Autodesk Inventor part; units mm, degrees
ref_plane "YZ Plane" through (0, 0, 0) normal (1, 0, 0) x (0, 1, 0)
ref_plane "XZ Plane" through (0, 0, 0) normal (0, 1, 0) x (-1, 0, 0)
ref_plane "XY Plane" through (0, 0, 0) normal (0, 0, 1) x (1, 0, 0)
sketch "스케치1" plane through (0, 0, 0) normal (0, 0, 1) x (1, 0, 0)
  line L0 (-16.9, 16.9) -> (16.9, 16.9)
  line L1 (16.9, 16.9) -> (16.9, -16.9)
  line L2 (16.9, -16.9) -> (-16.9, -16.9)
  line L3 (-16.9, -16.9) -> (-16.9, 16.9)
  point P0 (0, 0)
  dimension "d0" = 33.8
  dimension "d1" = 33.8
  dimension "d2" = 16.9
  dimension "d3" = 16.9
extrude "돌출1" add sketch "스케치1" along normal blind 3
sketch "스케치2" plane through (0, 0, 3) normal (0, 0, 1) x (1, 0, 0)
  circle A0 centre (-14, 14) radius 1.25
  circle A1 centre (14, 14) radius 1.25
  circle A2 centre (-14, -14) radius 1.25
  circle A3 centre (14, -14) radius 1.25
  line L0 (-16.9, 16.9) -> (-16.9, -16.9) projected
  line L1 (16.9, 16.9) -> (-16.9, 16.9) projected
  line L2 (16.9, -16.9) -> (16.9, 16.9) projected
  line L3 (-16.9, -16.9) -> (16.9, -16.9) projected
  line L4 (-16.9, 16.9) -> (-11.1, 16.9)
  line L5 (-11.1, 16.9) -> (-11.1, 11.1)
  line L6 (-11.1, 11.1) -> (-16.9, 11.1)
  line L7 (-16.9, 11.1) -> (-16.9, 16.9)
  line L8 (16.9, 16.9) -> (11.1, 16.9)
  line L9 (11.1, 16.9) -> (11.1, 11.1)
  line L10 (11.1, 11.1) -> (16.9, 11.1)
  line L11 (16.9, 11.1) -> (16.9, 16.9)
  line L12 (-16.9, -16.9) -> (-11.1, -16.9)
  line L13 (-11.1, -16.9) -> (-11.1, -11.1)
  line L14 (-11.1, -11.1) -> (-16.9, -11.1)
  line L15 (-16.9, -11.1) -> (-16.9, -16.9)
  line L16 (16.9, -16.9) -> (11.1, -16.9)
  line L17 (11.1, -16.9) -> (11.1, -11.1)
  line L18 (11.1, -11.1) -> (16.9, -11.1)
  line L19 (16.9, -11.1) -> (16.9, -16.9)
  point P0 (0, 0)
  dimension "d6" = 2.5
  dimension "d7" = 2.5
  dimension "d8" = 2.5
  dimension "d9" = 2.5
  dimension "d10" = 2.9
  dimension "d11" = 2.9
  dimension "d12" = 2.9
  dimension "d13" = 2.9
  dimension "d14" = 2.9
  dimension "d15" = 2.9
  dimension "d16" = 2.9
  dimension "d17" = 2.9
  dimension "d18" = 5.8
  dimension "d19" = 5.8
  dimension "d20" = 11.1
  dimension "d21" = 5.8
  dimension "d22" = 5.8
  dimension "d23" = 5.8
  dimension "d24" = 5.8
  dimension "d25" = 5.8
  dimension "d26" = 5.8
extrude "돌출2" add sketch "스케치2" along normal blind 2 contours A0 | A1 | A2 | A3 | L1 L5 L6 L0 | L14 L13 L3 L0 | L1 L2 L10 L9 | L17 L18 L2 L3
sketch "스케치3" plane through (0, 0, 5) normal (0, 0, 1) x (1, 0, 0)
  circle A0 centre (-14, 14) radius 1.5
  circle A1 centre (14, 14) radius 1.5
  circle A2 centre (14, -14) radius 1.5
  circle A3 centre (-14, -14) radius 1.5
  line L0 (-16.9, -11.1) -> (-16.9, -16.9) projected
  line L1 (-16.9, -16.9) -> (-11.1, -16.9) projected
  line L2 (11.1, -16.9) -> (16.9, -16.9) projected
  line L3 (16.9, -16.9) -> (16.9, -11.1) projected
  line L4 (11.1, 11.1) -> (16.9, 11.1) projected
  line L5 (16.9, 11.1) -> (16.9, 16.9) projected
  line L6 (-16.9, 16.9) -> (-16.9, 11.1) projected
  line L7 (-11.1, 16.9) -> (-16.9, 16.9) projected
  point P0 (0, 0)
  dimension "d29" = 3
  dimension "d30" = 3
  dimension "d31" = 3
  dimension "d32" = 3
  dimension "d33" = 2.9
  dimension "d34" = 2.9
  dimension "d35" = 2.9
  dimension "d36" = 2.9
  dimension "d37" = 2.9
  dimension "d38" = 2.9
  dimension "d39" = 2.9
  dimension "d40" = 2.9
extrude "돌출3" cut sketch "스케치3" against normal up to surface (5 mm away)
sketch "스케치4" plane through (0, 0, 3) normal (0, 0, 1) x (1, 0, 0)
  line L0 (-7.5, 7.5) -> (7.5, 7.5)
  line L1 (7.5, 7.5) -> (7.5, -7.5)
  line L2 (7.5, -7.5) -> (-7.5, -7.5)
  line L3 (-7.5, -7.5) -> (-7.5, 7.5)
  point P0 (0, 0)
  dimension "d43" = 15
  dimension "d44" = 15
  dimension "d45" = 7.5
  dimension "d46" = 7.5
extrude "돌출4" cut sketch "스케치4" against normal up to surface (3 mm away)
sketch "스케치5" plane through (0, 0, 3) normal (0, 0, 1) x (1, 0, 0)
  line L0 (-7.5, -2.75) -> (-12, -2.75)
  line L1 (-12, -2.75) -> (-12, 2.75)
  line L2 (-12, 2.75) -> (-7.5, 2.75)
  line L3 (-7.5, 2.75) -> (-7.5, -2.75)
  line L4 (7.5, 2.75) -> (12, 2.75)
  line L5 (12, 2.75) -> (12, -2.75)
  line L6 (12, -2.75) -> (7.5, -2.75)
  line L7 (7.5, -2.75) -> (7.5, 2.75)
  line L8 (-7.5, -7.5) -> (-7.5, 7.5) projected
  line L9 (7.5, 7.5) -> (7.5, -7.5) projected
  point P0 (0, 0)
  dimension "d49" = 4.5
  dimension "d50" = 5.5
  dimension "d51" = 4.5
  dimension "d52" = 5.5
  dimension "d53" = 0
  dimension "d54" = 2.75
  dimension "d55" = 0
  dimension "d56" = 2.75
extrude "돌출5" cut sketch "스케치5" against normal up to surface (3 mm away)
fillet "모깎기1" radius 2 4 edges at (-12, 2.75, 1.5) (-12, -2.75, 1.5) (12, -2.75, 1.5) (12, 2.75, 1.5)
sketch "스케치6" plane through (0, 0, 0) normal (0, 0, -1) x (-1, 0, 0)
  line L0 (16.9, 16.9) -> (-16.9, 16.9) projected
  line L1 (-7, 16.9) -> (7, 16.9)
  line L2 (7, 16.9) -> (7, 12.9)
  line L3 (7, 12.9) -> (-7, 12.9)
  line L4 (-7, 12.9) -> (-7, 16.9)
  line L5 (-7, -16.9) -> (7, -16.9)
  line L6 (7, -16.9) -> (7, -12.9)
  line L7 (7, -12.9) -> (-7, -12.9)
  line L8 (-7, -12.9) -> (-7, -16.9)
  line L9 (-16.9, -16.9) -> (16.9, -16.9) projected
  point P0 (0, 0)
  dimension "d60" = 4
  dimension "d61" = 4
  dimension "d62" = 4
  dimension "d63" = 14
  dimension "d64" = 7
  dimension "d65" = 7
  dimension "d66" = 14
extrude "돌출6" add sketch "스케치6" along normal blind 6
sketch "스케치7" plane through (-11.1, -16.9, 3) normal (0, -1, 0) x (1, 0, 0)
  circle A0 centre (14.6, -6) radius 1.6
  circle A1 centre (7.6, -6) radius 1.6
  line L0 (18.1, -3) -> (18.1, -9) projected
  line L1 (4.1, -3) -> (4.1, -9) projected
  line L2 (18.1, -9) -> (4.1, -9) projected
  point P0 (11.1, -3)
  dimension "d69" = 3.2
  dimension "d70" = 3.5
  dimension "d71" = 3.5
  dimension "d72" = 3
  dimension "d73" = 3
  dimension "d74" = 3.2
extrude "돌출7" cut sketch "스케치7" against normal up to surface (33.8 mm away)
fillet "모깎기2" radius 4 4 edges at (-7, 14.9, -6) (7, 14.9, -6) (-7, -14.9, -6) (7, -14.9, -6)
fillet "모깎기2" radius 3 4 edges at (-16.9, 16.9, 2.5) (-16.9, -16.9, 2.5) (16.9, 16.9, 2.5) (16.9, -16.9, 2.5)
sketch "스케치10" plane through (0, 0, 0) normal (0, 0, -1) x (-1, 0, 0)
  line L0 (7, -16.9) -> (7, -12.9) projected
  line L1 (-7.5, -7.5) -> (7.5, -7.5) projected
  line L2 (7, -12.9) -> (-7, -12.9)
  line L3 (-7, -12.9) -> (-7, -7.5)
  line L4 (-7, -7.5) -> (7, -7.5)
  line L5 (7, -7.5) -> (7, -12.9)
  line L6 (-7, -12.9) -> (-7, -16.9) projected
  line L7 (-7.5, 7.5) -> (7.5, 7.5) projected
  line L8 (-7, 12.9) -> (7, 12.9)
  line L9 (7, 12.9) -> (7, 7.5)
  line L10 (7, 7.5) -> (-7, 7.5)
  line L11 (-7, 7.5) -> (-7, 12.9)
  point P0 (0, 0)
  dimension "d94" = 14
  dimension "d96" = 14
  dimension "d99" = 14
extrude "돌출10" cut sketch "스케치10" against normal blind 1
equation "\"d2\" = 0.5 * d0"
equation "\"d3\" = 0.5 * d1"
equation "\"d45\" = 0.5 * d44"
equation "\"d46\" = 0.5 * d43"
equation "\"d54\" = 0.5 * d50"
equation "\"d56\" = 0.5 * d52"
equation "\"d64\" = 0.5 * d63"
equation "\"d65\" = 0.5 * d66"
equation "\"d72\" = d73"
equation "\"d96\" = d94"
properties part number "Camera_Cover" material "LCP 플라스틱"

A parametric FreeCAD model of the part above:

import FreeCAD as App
import Part
import Sketcher
from FreeCAD import Vector
Q = App.Units.Quantity


def edges_at(feature, points):
    """Names of the edges that pass closest to the given points."""
    edges = feature.Shape.Edges
    near = lambda p: min(range(len(edges)), key=lambda i: edges[i].distToShape(Part.Vertex(*p))[0])
    return sorted({f"Edge{near(p) + 1}" for p in points})


def add_polygon(sketch, points):
    """Adds a closed chain of lines whose ends are joined by coincident constraints."""
    first, n = sketch.GeometryCount, len(points)
    for a, b in zip(points, points[1:] + points[:1]):
        sketch.addGeometry(Part.LineSegment(App.Vector(*a, 0), App.Vector(*b, 0)), False)
    for i in range(n):
        sketch.addConstraint(Sketcher.Constraint("Coincident", first + i, 2, first + (i + 1) % n, 1))

doc = App.newDocument("Part")
body = doc.addObject("PartDesign::Body", "Body")

# Sketch on XY plane
sketch1 = body.newObject("Sketcher::SketchObject", "Sketch")
sketch1.AttachmentSupport = (doc.getObject("XY_Plane"), [""])
sketch1.MapMode = "FlatFace"
add_polygon(sketch1, [(16.9, 16.9), (-16.9, 16.9), (-16.9, -16.9), (16.9, -16.9)])  # lines 0-3
sketch1.addConstraint(Sketcher.Constraint("Horizontal", 0))
sketch1.addConstraint(Sketcher.Constraint("Vertical", 1))
sketch1.addConstraint(Sketcher.Constraint("Horizontal", 2))
sketch1.addConstraint(Sketcher.Constraint("Vertical", 3))
sketch1.addConstraint(Sketcher.Constraint("Symmetric", 0, 2, 2, 2, -1, 1))
sketch1.addConstraint(Sketcher.Constraint("Equal", 2, 1))
sketch1.addConstraint(Sketcher.Constraint("DistanceX", 0, 2, 0, 1, Q("33.8 mm")))
pad1 = body.newObject("PartDesign::Pad", "Pad")
pad1.Profile = sketch1
pad1.Length = 3

# Sketch on XY plane
sketch2 = body.newObject("Sketcher::SketchObject", "Sketch001")
sketch2.AttachmentSupport = (doc.getObject("XY_Plane"), [""])
sketch2.MapMode = "FlatFace"
sketch2.AttachmentOffset = App.Placement(Vector(0, 0, 3), App.Rotation())
add_polygon(sketch2, [(-11.1, 16.9), (-16.9, 16.9), (-16.9, 11.1), (-11.1, 11.1)])  # lines 0-3
add_polygon(sketch2, [(16.9, 16.9), (11.1, 16.9), (11.1, 11.1), (16.9, 11.1)])  # lines 4-7
add_polygon(sketch2, [(-11.1, -11.1), (-16.9, -11.1), (-16.9, -16.9), (-11.1, -16.9)])  # lines 8-11
add_polygon(sketch2, [(11.1, -11.1), (11.1, -16.9), (16.9, -16.9), (16.9, -11.1)])  # lines 12-15
sketch2.addConstraint(Sketcher.Constraint("Horizontal", 0))
sketch2.addConstraint(Sketcher.Constraint("Vertical", 1))
sketch2.addConstraint(Sketcher.Constraint("Horizontal", 2))
sketch2.addConstraint(Sketcher.Constraint("Vertical", 3))
sketch2.addConstraint(Sketcher.Constraint("Horizontal", 4))
sketch2.addConstraint(Sketcher.Constraint("Vertical", 5))
sketch2.addConstraint(Sketcher.Constraint("Horizontal", 6))
sketch2.addConstraint(Sketcher.Constraint("Vertical", 7))
sketch2.addConstraint(Sketcher.Constraint("Horizontal", 8))
sketch2.addConstraint(Sketcher.Constraint("Vertical", 9))
sketch2.addConstraint(Sketcher.Constraint("Horizontal", 10))
sketch2.addConstraint(Sketcher.Constraint("Vertical", 11))
sketch2.addConstraint(Sketcher.Constraint("Vertical", 12))
sketch2.addConstraint(Sketcher.Constraint("Horizontal", 13))
sketch2.addConstraint(Sketcher.Constraint("Vertical", 14))
sketch2.addConstraint(Sketcher.Constraint("Horizontal", 15))
sketch2.addConstraint(Sketcher.Constraint("Symmetric", 6, 2, 8, 2, -1, 1))
sketch2.addConstraint(Sketcher.Constraint("Symmetric", 4, 2, 10, 2, -1, 1))
sketch2.addConstraint(Sketcher.Constraint("Symmetric", 3, 2, 12, 2, -1, 1))
sketch2.addConstraint(Sketcher.Constraint("Symmetric", 1, 2, 14, 2, -1, 1))
sketch2.addConstraint(Sketcher.Constraint("Symmetric", 3, 2, 4, 2, -2))
sketch2.addConstraint(Sketcher.Constraint("Symmetric", 1, 2, 6, 2, -2))
sketch2.addConstraint(Sketcher.Constraint("Equal", 15, 1))
sketch2.addConstraint(Sketcher.Constraint("DistanceX", 0, 2, 0, 1, Q("5.8 mm")))
sketch2.addConstraint(Sketcher.Constraint("DistanceY", -1, 1, 1, 2, Q("11.1 mm")))
sketch2.addConstraint(Sketcher.Constraint("DistanceX", 2, 2, -1, 1, Q("11.1 mm")))
pad2 = body.newObject("PartDesign::Pad", "Pad001")
pad2.Profile = sketch2
pad2.Length = 2

# Sketch on XY plane
sketch3 = body.newObject("Sketcher::SketchObject", "Sketch002")
sketch3.AttachmentSupport = (doc.getObject("XY_Plane"), [""])
sketch3.MapMode = "FlatFace"
sketch3.AttachmentOffset = App.Placement(Vector(0, 0, 5), App.Rotation())
sketch3.addGeometry(Part.Circle(Vector(-14, 14, 0), Vector(0, 0, 1), 1.5), False)
sketch3.addGeometry(Part.Circle(Vector(14, 14, 0), Vector(0, 0, 1), 1.5), False)
sketch3.addGeometry(Part.Circle(Vector(14, -14, 0), Vector(0, 0, 1), 1.5), False)
sketch3.addGeometry(Part.Circle(Vector(-14, -14, 0), Vector(0, 0, 1), 1.5), False)
sketch3.addConstraint(Sketcher.Constraint("Equal", 0, 1))
sketch3.addConstraint(Sketcher.Constraint("Equal", 1, 2))
sketch3.addConstraint(Sketcher.Constraint("Equal", 2, 3))
sketch3.addConstraint(Sketcher.Constraint("Symmetric", 0, 3, 2, 3, -1, 1))
sketch3.addConstraint(Sketcher.Constraint("Symmetric", 1, 3, 3, 3, -1, 1))
sketch3.addConstraint(Sketcher.Constraint("Symmetric", 0, 3, 1, 3, -2))
sketch3.addConstraint(Sketcher.Constraint("Diameter", 0, Q("3 mm")))
sketch3.addConstraint(Sketcher.Constraint("DistanceX", 0, 3, -1, 1, Q("14 mm")))
sketch3.addConstraint(Sketcher.Constraint("DistanceY", -1, 1, 0, 3, Q("14 mm")))
pocket1 = body.newObject("PartDesign::Pocket", "Pocket")
pocket1.Profile = sketch3
pocket1.Length = 5

# Sketch on XY plane
sketch4 = body.newObject("Sketcher::SketchObject", "Sketch003")
sketch4.AttachmentSupport = (doc.getObject("XY_Plane"), [""])
sketch4.MapMode = "FlatFace"
sketch4.AttachmentOffset = App.Placement(Vector(0, 0, 3), App.Rotation())
add_polygon(sketch4, [(7.5, 7.5), (-7.5, 7.5), (-7.5, -7.5), (7.5, -7.5)])  # lines 0-3
sketch4.addConstraint(Sketcher.Constraint("Horizontal", 0))
sketch4.addConstraint(Sketcher.Constraint("Vertical", 1))
sketch4.addConstraint(Sketcher.Constraint("Horizontal", 2))
sketch4.addConstraint(Sketcher.Constraint("Vertical", 3))
sketch4.addConstraint(Sketcher.Constraint("Symmetric", 0, 2, 2, 2, -1, 1))
sketch4.addConstraint(Sketcher.Constraint("Equal", 2, 1))
sketch4.addConstraint(Sketcher.Constraint("DistanceX", 0, 2, 0, 1, Q("15 mm")))
pocket2 = body.newObject("PartDesign::Pocket", "Pocket001")
pocket2.Profile = sketch4
pocket2.Length = 3

# Sketch on XY plane
sketch5 = body.newObject("Sketcher::SketchObject", "Sketch004")
sketch5.AttachmentSupport = (doc.getObject("XY_Plane"), [""])
sketch5.MapMode = "FlatFace"
sketch5.AttachmentOffset = App.Placement(Vector(0, 0, 3), App.Rotation())
add_polygon(sketch5, [(-12, -2.75), (-7.5, -2.75), (-7.5, 2.75), (-12, 2.75)])  # lines 0-3
add_polygon(sketch5, [(12, 2.75), (7.5, 2.75), (7.5, -2.75), (12, -2.75)])  # lines 4-7
sketch5.addConstraint(Sketcher.Constraint("Horizontal", 0))
sketch5.addConstraint(Sketcher.Constraint("Vertical", 1))
sketch5.addConstraint(Sketcher.Constraint("Horizontal", 2))
sketch5.addConstraint(Sketcher.Constraint("Vertical", 3))
sketch5.addConstraint(Sketcher.Constraint("Horizontal", 4))
sketch5.addConstraint(Sketcher.Constraint("Vertical", 5))
sketch5.addConstraint(Sketcher.Constraint("Horizontal", 6))
sketch5.addConstraint(Sketcher.Constraint("Vertical", 7))
sketch5.addConstraint(Sketcher.Constraint("Symmetric", 0, 2, 4, 2, -1, 1))
sketch5.addConstraint(Sketcher.Constraint("Symmetric", 2, 2, 6, 2, -1, 1))
sketch5.addConstraint(Sketcher.Constraint("Horizontal", 2, 2, 4, 2))
sketch5.addConstraint(Sketcher.Constraint("DistanceX", 0, 1, 0, 2, Q("4.5 mm")))
sketch5.addConstraint(Sketcher.Constraint("DistanceY", 1, 1, 1, 2, Q("5.5 mm")))
sketch5.addConstraint(Sketcher.Constraint("DistanceX", 2, 2, -1, 1, Q("12 mm")))
pocket3 = body.newObject("PartDesign::Pocket", "Pocket002")
pocket3.Profile = sketch5
pocket3.Length = 3
doc.recompute()

fillet = body.newObject("PartDesign::Fillet", "Fillet")
fillet.Base = (pocket3, edges_at(pocket3, [
    (-12, 2.75, 1.5),
    (-12, -2.75, 1.5),
    (12, -2.75, 1.5),
    (12, 2.75, 1.5),
]))
fillet.Radius = 2

# Sketch on XY plane
sketch6 = body.newObject("Sketcher::SketchObject", "Sketch005")
sketch6.AttachmentSupport = (doc.getObject("XY_Plane"), [""])
sketch6.MapMode = "FlatFace"
add_polygon(sketch6, [(-7, 12.9), (-7, 16.9), (7, 16.9), (7, 12.9)])  # lines 0-3
add_polygon(sketch6, [(7, -12.9), (7, -16.9), (-7, -16.9), (-7, -12.9)])  # lines 4-7
sketch6.addConstraint(Sketcher.Constraint("Vertical", 0))
sketch6.addConstraint(Sketcher.Constraint("Horizontal", 1))
sketch6.addConstraint(Sketcher.Constraint("Vertical", 2))
sketch6.addConstraint(Sketcher.Constraint("Horizontal", 3))
sketch6.addConstraint(Sketcher.Constraint("Vertical", 4))
sketch6.addConstraint(Sketcher.Constraint("Horizontal", 5))
sketch6.addConstraint(Sketcher.Constraint("Vertical", 6))
sketch6.addConstraint(Sketcher.Constraint("Horizontal", 7))
sketch6.addConstraint(Sketcher.Constraint("Symmetric", 0, 2, 4, 2, -1, 1))
sketch6.addConstraint(Sketcher.Constraint("Symmetric", 2, 2, 6, 2, -1, 1))
sketch6.addConstraint(Sketcher.Constraint("Vertical", 2, 2, 4, 2))
sketch6.addConstraint(Sketcher.Constraint("DistanceX", 1, 1, 1, 2, Q("14 mm")))
sketch6.addConstraint(Sketcher.Constraint("DistanceY", 0, 1, 0, 2, Q("4 mm")))
sketch6.addConstraint(Sketcher.Constraint("DistanceY", -1, 1, 0, 2, Q("16.9 mm")))
pad3 = body.newObject("PartDesign::Pad", "Pad002")
pad3.Profile = sketch6
pad3.Length = 6
pad3.Reversed = True

# Sketch on XZ plane
sketch7 = body.newObject("Sketcher::SketchObject", "Sketch006")
sketch7.AttachmentSupport = (doc.getObject("XZ_Plane"), [""])
sketch7.MapMode = "FlatFace"
sketch7.AttachmentOffset = App.Placement(Vector(0, 0, 16.9), App.Rotation())
sketch7.addGeometry(Part.Circle(Vector(3.5, -3, 0), Vector(0, 0, 1), 1.6), False)
sketch7.addGeometry(Part.Circle(Vector(-3.5, -3, 0), Vector(0, 0, 1), 1.6), False)
sketch7.addConstraint(Sketcher.Constraint("Equal", 0, 1))
sketch7.addConstraint(Sketcher.Constraint("Symmetric", 0, 3, 1, 3, -2))
sketch7.addConstraint(Sketcher.Constraint("Diameter", 0, Q("3.2 mm")))
sketch7.addConstraint(Sketcher.Constraint("DistanceY", 0, 3, -1, 1, Q("3 mm")))
sketch7.addConstraint(Sketcher.Constraint("DistanceX", -1, 1, 0, 3, Q("3.5 mm")))
pocket4 = body.newObject("PartDesign::Pocket", "Pocket003")
pocket4.Profile = sketch7
pocket4.Length = 33.8
doc.recompute()

fillet2 = body.newObject("PartDesign::Fillet", "Fillet001")
fillet2.Base = (pocket4, edges_at(pocket4, [
    (-7, 14.9, -6),
    (7, 14.9, -6),
    (-7, -14.9, -6),
    (7, -14.9, -6),
]))
fillet2.Radius = 4
doc.recompute()

fillet3 = body.newObject("PartDesign::Fillet", "Fillet002")
fillet3.Base = (fillet2, edges_at(fillet2, [
    (-16.9, 16.9, 2.5),
    (-16.9, -16.9, 2.5),
    (16.9, 16.9, 2.5),
    (16.9, -16.9, 2.5),
]))
fillet3.Radius = 3

# Sketch on XY plane
sketch8 = body.newObject("Sketcher::SketchObject", "Sketch007")
sketch8.AttachmentSupport = (doc.getObject("XY_Plane"), [""])
sketch8.MapMode = "FlatFace"
add_polygon(sketch8, [(-7, -7.5), (7, -7.5), (7, -12.9), (-7, -12.9)])  # lines 0-3
add_polygon(sketch8, [(7, 12.9), (7, 7.5), (-7, 7.5), (-7, 12.9)])  # lines 4-7
sketch8.addConstraint(Sketcher.Constraint("Horizontal", 0))
sketch8.addConstraint(Sketcher.Constraint("Vertical", 1))
sketch8.addConstraint(Sketcher.Constraint("Horizontal", 2))
sketch8.addConstraint(Sketcher.Constraint("Vertical", 3))
sketch8.addConstraint(Sketcher.Constraint("Vertical", 4))
sketch8.addConstraint(Sketcher.Constraint("Horizontal", 5))
sketch8.addConstraint(Sketcher.Constraint("Vertical", 6))
sketch8.addConstraint(Sketcher.Constraint("Horizontal", 7))
sketch8.addConstraint(Sketcher.Constraint("Symmetric", 3, 2, 4, 2, -1, 1))
sketch8.addConstraint(Sketcher.Constraint("Symmetric", 1, 2, 6, 2, -1, 1))
sketch8.addConstraint(Sketcher.Constraint("Vertical", 1, 2, 4, 2))
sketch8.addConstraint(Sketcher.Constraint("DistanceX", 0, 1, 0, 2, Q("14 mm")))
sketch8.addConstraint(Sketcher.Constraint("DistanceY", 1, 2, 1, 1, Q("5.4 mm")))
sketch8.addConstraint(Sketcher.Constraint("DistanceY", 0, 2, 4, 2, Q("15 mm")))
pocket5 = body.newObject("PartDesign::Pocket", "Pocket004")
pocket5.Profile = sketch8
pocket5.Length = 1
pocket5.Reversed = True

doc.recompute()
